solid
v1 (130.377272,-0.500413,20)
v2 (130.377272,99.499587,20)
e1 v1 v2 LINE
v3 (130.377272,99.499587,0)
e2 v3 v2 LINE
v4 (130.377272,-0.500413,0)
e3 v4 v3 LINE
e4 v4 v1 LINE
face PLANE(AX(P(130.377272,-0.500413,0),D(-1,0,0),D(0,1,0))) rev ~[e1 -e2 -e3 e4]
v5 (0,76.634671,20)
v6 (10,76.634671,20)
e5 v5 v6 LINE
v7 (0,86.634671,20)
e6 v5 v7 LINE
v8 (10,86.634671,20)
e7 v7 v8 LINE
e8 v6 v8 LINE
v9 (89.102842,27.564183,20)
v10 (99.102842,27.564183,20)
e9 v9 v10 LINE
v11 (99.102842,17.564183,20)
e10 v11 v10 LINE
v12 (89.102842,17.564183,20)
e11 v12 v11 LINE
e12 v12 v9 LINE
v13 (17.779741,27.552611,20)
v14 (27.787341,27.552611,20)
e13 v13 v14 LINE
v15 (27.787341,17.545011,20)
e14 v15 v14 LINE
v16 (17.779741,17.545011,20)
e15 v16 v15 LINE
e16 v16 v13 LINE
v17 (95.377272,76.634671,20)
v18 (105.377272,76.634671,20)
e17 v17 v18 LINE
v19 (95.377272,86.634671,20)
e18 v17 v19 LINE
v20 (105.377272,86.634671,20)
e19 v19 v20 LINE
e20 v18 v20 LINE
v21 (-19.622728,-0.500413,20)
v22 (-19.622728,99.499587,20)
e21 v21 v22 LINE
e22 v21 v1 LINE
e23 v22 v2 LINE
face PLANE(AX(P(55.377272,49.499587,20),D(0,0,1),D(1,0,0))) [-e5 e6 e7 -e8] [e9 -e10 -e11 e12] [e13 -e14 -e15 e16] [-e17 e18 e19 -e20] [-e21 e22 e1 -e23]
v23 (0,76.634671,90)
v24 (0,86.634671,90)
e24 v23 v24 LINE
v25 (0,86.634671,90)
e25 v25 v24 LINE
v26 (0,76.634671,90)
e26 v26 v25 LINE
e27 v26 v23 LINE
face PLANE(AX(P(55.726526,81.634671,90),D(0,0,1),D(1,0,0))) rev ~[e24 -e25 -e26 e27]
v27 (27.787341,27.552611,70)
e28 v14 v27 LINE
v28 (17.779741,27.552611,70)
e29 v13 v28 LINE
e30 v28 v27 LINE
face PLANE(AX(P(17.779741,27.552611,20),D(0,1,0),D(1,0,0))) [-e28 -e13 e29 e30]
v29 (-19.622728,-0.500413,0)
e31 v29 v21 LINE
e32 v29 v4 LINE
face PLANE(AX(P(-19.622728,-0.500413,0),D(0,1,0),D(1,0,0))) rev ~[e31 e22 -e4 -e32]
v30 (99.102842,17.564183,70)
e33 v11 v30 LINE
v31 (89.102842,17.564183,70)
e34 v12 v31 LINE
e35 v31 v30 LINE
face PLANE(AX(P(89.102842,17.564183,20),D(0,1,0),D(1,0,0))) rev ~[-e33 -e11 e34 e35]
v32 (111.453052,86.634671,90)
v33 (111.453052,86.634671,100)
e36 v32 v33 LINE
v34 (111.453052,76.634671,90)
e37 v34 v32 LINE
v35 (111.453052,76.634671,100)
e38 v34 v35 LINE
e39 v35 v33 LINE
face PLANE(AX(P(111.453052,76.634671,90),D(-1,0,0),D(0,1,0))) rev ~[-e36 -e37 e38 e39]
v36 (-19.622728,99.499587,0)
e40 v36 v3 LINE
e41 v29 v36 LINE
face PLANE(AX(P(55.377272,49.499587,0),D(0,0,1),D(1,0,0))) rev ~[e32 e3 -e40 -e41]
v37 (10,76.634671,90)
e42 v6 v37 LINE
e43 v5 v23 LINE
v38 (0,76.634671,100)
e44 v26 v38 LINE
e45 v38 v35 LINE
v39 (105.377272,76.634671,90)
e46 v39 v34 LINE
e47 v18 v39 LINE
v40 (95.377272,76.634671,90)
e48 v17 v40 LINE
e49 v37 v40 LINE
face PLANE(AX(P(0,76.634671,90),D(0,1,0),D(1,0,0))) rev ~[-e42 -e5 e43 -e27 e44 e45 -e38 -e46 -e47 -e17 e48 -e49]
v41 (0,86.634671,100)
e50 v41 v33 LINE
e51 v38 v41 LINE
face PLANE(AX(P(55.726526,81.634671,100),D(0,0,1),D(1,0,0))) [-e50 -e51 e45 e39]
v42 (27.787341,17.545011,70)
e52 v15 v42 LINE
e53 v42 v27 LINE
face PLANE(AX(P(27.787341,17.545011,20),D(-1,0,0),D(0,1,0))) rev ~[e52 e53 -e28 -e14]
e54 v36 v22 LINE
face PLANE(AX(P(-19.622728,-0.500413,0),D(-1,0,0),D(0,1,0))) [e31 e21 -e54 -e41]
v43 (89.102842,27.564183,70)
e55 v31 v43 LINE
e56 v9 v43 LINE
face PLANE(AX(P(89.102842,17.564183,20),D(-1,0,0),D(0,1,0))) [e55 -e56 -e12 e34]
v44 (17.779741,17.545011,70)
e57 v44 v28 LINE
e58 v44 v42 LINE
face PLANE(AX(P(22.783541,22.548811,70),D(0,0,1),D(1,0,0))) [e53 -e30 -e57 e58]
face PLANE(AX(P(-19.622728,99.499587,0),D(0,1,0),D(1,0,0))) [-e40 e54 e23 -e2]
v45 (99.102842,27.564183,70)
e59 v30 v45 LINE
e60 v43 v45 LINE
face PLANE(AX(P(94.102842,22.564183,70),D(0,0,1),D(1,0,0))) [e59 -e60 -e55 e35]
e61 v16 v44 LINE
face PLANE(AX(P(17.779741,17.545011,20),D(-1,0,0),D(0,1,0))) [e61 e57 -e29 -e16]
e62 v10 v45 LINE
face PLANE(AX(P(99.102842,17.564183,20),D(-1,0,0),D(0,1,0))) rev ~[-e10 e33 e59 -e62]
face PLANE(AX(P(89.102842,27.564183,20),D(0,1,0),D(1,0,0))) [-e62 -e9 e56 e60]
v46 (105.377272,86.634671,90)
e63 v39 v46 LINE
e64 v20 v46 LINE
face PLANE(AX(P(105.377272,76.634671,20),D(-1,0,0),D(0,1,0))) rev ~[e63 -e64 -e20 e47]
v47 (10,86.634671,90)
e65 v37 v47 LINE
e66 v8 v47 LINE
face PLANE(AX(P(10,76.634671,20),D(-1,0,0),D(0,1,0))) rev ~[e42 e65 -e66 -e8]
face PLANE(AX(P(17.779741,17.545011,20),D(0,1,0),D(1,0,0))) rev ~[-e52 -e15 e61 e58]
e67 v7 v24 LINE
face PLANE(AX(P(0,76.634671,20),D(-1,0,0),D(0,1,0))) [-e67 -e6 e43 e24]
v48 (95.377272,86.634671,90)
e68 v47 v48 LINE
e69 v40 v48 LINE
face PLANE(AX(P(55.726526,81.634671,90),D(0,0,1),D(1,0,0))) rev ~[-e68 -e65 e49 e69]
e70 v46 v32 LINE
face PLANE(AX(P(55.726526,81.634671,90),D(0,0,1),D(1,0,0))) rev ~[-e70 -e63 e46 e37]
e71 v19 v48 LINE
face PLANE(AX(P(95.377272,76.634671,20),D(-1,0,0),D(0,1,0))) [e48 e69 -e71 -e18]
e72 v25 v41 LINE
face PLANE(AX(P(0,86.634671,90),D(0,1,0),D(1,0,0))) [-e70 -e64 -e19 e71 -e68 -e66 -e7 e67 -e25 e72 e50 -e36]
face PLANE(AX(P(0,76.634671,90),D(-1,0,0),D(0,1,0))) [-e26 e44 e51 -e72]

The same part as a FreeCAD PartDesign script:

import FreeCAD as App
import Part
import Sketcher
from FreeCAD import Vector

doc = App.newDocument("Part")
params = doc.addObject("Spreadsheet::Sheet", "Params")
for row, (alias, value) in enumerate([
    ("sketch1_width", "150 mm"),
    ("sketch1_height", "100 mm"),
    ("pad1_length", "20 mm"),
    ("sketch2_width", "10 mm"),
    ("pad2_length", "70 mm"),
    ("sketch3_width", "10 mm"),
    ("pad3_length", "50 mm"),
    ("sketch4_height", "10 mm"),
    ("pad4_length", "10 mm"),
], start=1):
    params.set(f"A{row}", alias)
    params.set(f"B{row}", "=" + value)
    params.setAlias(f"B{row}", alias)

body = doc.addObject("PartDesign::Body", "Body")

# Sketch on XY plane
sketch1 = doc.addObject("Sketcher::SketchObject", "Sketch")
body.addObject(sketch1)
sketch1.AttachmentSupport = (doc.XY_Plane, [""])
sketch1.MapMode = "FlatFace"
sketch1.addGeometry(Part.LineSegment(Vector(-19.622728, 99.499587, 0), Vector(-19.622728, -0.500413, 0)), False)
sketch1.addGeometry(Part.LineSegment(Vector(-19.622728, -0.500413, 0), Vector(130.377272, -0.500413, 0)), False)
sketch1.addGeometry(Part.LineSegment(Vector(130.377272, -0.500413, 0), Vector(130.377272, 99.499587, 0)), False)
sketch1.addGeometry(Part.LineSegment(Vector(130.377272, 99.499587, 0), Vector(-19.622728, 99.499587, 0)), False)
sketch1.addConstraint(Sketcher.Constraint("Coincident", 0, 2, 1, 1))
sketch1.addConstraint(Sketcher.Constraint("Coincident", 1, 2, 2, 1))
sketch1.addConstraint(Sketcher.Constraint("Coincident", 2, 2, 3, 1))
sketch1.addConstraint(Sketcher.Constraint("Coincident", 3, 2, 0, 1))
sketch1.addConstraint(Sketcher.Constraint("Vertical", 0))
sketch1.addConstraint(Sketcher.Constraint("Horizontal", 1))
sketch1.addConstraint(Sketcher.Constraint("Vertical", 2))
sketch1.addConstraint(Sketcher.Constraint("Horizontal", 3))
sketch1.addConstraint(Sketcher.Constraint("DistanceX", 1, 1, 1, 2, 150.0))
sketch1.addConstraint(Sketcher.Constraint("DistanceY", 0, 2, 0, 1, 100.0))
sketch1.addConstraint(Sketcher.Constraint("DistanceX", -1, 1, 1, 2, 130.377272))
sketch1.addConstraint(Sketcher.Constraint("DistanceY", 0, 2, -1, 1, 0.500413))
sketch1.setExpression("Constraints[8]", "Params.sketch1_width")
sketch1.setExpression("Constraints[9]", "Params.sketch1_height")
pad1 = doc.addObject("PartDesign::Pad", "Pad")
body.addObject(pad1)
pad1.Profile = sketch1
pad1.setExpression("Length", "Params.pad1_length")

# Sketch on XY plane
sketch2 = doc.addObject("Sketcher::SketchObject", "Sketch001")
body.addObject(sketch2)
sketch2.AttachmentSupport = (doc.XY_Plane, [""])
sketch2.MapMode = "FlatFace"
sketch2.AttachmentOffset = App.Placement(Vector(0, 0, 20), App.Rotation())
sketch2.addGeometry(Part.LineSegment(Vector(0, 86.634671, 0), Vector(0, 76.634671, 0)), False)
sketch2.addGeometry(Part.LineSegment(Vector(0, 76.634671, 0), Vector(10, 76.634671, 0)), False)
sketch2.addGeometry(Part.LineSegment(Vector(10, 76.634671, 0), Vector(10, 86.634671, 0)), False)
sketch2.addGeometry(Part.LineSegment(Vector(10, 86.634671, 0), Vector(0, 86.634671, 0)), False)
sketch2.addGeometry(Part.LineSegment(Vector(95.377272, 86.634671, 0), Vector(95.377272, 76.634671, 0)), False)
sketch2.addGeometry(Part.LineSegment(Vector(95.377272, 76.634671, 0), Vector(105.377272, 76.634671, 0)), False)
sketch2.addGeometry(Part.LineSegment(Vector(105.377272, 76.634671, 0), Vector(105.377272, 86.634671, 0)), False)
sketch2.addGeometry(Part.LineSegment(Vector(105.377272, 86.634671, 0), Vector(95.377272, 86.634671, 0)), False)
sketch2.addConstraint(Sketcher.Constraint("Coincident", 0, 2, 1, 1))
sketch2.addConstraint(Sketcher.Constraint("Coincident", 1, 2, 2, 1))
sketch2.addConstraint(Sketcher.Constraint("Coincident", 2, 2, 3, 1))
sketch2.addConstraint(Sketcher.Constraint("Coincident", 3, 2, 0, 1))
sketch2.addConstraint(Sketcher.Constraint("Coincident", 4, 2, 5, 1))
sketch2.addConstraint(Sketcher.Constraint("Coincident", 5, 2, 6, 1))
sketch2.addConstraint(Sketcher.Constraint("Coincident", 6, 2, 7, 1))
sketch2.addConstraint(Sketcher.Constraint("Coincident", 7, 2, 4, 1))
sketch2.addConstraint(Sketcher.Constraint("Vertical", 0))
sketch2.addConstraint(Sketcher.Constraint("Horizontal", 1))
sketch2.addConstraint(Sketcher.Constraint("Vertical", 2))
sketch2.addConstraint(Sketcher.Constraint("Horizontal", 3))
sketch2.addConstraint(Sketcher.Constraint("Vertical", 4))
sketch2.addConstraint(Sketcher.Constraint("Horizontal", 5))
sketch2.addConstraint(Sketcher.Constraint("Vertical", 6))
sketch2.addConstraint(Sketcher.Constraint("Horizontal", 7))
sketch2.addConstraint(Sketcher.Constraint("PointOnObject", 0, 2, -2))
sketch2.addConstraint(Sketcher.Constraint("Horizontal", 1, 2, 4, 2))
sketch2.addConstraint(Sketcher.Constraint("Horizontal", 3, 2, 6, 2))
sketch2.addConstraint(Sketcher.Constraint("Equal", 3, 5))
sketch2.addConstraint(Sketcher.Constraint("Equal", 7, 0))
sketch2.addConstraint(Sketcher.Constraint("DistanceX", 1, 1, 1, 2, 10.0))
sketch2.addConstraint(Sketcher.Constraint("DistanceY", -1, 1, 0, 2, 76.634671))
sketch2.addConstraint(Sketcher.Constraint("DistanceX", -1, 1, 4, 2, 95.377272))
sketch2.setExpression("Constraints[21]", "Params.sketch2_width")
pad2 = doc.addObject("PartDesign::Pad", "Pad001")
body.addObject(pad2)
pad2.Profile = sketch2
pad2.setExpression("Length", "Params.pad2_length")

# Sketch on XY plane
sketch3 = doc.addObject("Sketcher::SketchObject", "Sketch002")
body.addObject(sketch3)
sketch3.AttachmentSupport = (doc.XY_Plane, [""])
sketch3.MapMode = "FlatFace"
sketch3.AttachmentOffset = App.Placement(Vector(0, 0, 20), App.Rotation())
sketch3.addGeometry(Part.LineSegment(Vector(17.779741, 27.552611, 0), Vector(17.779741, 17.545011, 0)), False)
sketch3.addGeometry(Part.LineSegment(Vector(17.779741, 17.545011, 0), Vector(27.787341, 17.545011, 0)), False)
sketch3.addGeometry(Part.LineSegment(Vector(27.787341, 17.545011, 0), Vector(27.787341, 27.552611, 0)), False)
sketch3.addGeometry(Part.LineSegment(Vector(27.787341, 27.552611, 0), Vector(17.779741, 27.552611, 0)), False)
sketch3.addGeometry(Part.LineSegment(Vector(89.102842, 27.564183, 0), Vector(89.102842, 17.564183, 0)), False)
sketch3.addGeometry(Part.LineSegment(Vector(89.102842, 17.564183, 0), Vector(99.102842, 17.564183, 0)), False)
sketch3.addGeometry(Part.LineSegment(Vector(99.102842, 17.564183, 0), Vector(99.102842, 27.564183, 0)), False)
sketch3.addGeometry(Part.LineSegment(Vector(99.102842, 27.564183, 0), Vector(89.102842, 27.564183, 0)), False)
sketch3.addConstraint(Sketcher.Constraint("Coincident", 0, 2, 1, 1))
sketch3.addConstraint(Sketcher.Constraint("Coincident", 1, 2, 2, 1))
sketch3.addConstraint(Sketcher.Constraint("Coincident", 2, 2, 3, 1))
sketch3.addConstraint(Sketcher.Constraint("Coincident", 3, 2, 0, 1))
sketch3.addConstraint(Sketcher.Constraint("Coincident", 4, 2, 5, 1))
sketch3.addConstraint(Sketcher.Constraint("Coincident", 5, 2, 6, 1))
sketch3.addConstraint(Sketcher.Constraint("Coincident", 6, 2, 7, 1))
sketch3.addConstraint(Sketcher.Constraint("Coincident", 7, 2, 4, 1))
sketch3.addConstraint(Sketcher.Constraint("Vertical", 0))
sketch3.addConstraint(Sketcher.Constraint("Horizontal", 1))
sketch3.addConstraint(Sketcher.Constraint("Vertical", 2))
sketch3.addConstraint(Sketcher.Constraint("Horizontal", 3))
sketch3.addConstraint(Sketcher.Constraint("Vertical", 4))
sketch3.addConstraint(Sketcher.Constraint("Horizontal", 5))
sketch3.addConstraint(Sketcher.Constraint("Vertical", 6))
sketch3.addConstraint(Sketcher.Constraint("Horizontal", 7))
sketch3.addConstraint(Sketcher.Constraint("Equal", 3, 0))
sketch3.addConstraint(Sketcher.Constraint("Equal", 7, 4))
sketch3.addConstraint(Sketcher.Constraint("DistanceX", 5, 1, 5, 2, 10.0))
sketch3.addConstraint(Sketcher.Constraint("DistanceX", 1, 1, 1, 2, 10.0076))
sketch3.addConstraint(Sketcher.Constraint("DistanceX", 1, 2, 4, 2, 61.315501))
sketch3.addConstraint(Sketcher.Constraint("DistanceX", -1, 1, 0, 2, 17.779741))
sketch3.addConstraint(Sketcher.Constraint("DistanceY", -1, 1, 0, 2, 17.545011))
sketch3.addConstraint(Sketcher.Constraint("DistanceY", -1, 1, 4, 2, 17.564183))
sketch3.setExpression("Constraints[18]", "Params.sketch3_width")
pad3 = doc.addObject("PartDesign::Pad", "Pad002")
body.addObject(pad3)
pad3.Profile = sketch3
pad3.setExpression("Length", "Params.pad3_length")

# Sketch on XY plane
sketch4 = doc.addObject("Sketcher::SketchObject", "Sketch003")
body.addObject(sketch4)
sketch4.AttachmentSupport = (doc.XY_Plane, [""])
sketch4.MapMode = "FlatFace"
sketch4.AttachmentOffset = App.Placement(Vector(0, 0, 90), App.Rotation())
sketch4.addGeometry(Part.LineSegment(Vector(0, 86.634671, 0), Vector(0, 76.634671, 0)), False)
sketch4.addGeometry(Part.LineSegment(Vector(0, 76.634671, 0), Vector(111.453052, 76.634671, 0)), False)
sketch4.addGeometry(Part.LineSegment(Vector(111.453052, 76.634671, 0), Vector(111.453052, 86.634671, 0)), False)
sketch4.addGeometry(Part.LineSegment(Vector(111.453052, 86.634671, 0), Vector(0, 86.634671, 0)), False)
sketch4.addConstraint(Sketcher.Constraint("Coincident", 0, 2, 1, 1))
sketch4.addConstraint(Sketcher.Constraint("Coincident", 1, 2, 2, 1))
sketch4.addConstraint(Sketcher.Constraint("Coincident", 2, 2, 3, 1))
sketch4.addConstraint(Sketcher.Constraint("Coincident", 3, 2, 0, 1))
sketch4.addConstraint(Sketcher.Constraint("Vertical", 0))
sketch4.addConstraint(Sketcher.Constraint("Horizontal", 1))
sketch4.addConstraint(Sketcher.Constraint("Vertical", 2))
sketch4.addConstraint(Sketcher.Constraint("Horizontal", 3))
sketch4.addConstraint(Sketcher.Constraint("PointOnObject", 0, 2, -2))
sketch4.addConstraint(Sketcher.Constraint("DistanceY", 0, 2, 0, 1, 10.0))
sketch4.addConstraint(Sketcher.Constraint("DistanceX", 1, 1, 1, 2, 111.453053))
sketch4.addConstraint(Sketcher.Constraint("DistanceY", -1, 1, 0, 2, 76.634671))
sketch4.setExpression("Constraints[9]", "Params.sketch4_height")
pad4 = doc.addObject("PartDesign::Pad", "Pad003")
body.addObject(pad4)
pad4.Profile = sketch4
pad4.setExpression("Length", "Params.pad4_length")

doc.recompute()
